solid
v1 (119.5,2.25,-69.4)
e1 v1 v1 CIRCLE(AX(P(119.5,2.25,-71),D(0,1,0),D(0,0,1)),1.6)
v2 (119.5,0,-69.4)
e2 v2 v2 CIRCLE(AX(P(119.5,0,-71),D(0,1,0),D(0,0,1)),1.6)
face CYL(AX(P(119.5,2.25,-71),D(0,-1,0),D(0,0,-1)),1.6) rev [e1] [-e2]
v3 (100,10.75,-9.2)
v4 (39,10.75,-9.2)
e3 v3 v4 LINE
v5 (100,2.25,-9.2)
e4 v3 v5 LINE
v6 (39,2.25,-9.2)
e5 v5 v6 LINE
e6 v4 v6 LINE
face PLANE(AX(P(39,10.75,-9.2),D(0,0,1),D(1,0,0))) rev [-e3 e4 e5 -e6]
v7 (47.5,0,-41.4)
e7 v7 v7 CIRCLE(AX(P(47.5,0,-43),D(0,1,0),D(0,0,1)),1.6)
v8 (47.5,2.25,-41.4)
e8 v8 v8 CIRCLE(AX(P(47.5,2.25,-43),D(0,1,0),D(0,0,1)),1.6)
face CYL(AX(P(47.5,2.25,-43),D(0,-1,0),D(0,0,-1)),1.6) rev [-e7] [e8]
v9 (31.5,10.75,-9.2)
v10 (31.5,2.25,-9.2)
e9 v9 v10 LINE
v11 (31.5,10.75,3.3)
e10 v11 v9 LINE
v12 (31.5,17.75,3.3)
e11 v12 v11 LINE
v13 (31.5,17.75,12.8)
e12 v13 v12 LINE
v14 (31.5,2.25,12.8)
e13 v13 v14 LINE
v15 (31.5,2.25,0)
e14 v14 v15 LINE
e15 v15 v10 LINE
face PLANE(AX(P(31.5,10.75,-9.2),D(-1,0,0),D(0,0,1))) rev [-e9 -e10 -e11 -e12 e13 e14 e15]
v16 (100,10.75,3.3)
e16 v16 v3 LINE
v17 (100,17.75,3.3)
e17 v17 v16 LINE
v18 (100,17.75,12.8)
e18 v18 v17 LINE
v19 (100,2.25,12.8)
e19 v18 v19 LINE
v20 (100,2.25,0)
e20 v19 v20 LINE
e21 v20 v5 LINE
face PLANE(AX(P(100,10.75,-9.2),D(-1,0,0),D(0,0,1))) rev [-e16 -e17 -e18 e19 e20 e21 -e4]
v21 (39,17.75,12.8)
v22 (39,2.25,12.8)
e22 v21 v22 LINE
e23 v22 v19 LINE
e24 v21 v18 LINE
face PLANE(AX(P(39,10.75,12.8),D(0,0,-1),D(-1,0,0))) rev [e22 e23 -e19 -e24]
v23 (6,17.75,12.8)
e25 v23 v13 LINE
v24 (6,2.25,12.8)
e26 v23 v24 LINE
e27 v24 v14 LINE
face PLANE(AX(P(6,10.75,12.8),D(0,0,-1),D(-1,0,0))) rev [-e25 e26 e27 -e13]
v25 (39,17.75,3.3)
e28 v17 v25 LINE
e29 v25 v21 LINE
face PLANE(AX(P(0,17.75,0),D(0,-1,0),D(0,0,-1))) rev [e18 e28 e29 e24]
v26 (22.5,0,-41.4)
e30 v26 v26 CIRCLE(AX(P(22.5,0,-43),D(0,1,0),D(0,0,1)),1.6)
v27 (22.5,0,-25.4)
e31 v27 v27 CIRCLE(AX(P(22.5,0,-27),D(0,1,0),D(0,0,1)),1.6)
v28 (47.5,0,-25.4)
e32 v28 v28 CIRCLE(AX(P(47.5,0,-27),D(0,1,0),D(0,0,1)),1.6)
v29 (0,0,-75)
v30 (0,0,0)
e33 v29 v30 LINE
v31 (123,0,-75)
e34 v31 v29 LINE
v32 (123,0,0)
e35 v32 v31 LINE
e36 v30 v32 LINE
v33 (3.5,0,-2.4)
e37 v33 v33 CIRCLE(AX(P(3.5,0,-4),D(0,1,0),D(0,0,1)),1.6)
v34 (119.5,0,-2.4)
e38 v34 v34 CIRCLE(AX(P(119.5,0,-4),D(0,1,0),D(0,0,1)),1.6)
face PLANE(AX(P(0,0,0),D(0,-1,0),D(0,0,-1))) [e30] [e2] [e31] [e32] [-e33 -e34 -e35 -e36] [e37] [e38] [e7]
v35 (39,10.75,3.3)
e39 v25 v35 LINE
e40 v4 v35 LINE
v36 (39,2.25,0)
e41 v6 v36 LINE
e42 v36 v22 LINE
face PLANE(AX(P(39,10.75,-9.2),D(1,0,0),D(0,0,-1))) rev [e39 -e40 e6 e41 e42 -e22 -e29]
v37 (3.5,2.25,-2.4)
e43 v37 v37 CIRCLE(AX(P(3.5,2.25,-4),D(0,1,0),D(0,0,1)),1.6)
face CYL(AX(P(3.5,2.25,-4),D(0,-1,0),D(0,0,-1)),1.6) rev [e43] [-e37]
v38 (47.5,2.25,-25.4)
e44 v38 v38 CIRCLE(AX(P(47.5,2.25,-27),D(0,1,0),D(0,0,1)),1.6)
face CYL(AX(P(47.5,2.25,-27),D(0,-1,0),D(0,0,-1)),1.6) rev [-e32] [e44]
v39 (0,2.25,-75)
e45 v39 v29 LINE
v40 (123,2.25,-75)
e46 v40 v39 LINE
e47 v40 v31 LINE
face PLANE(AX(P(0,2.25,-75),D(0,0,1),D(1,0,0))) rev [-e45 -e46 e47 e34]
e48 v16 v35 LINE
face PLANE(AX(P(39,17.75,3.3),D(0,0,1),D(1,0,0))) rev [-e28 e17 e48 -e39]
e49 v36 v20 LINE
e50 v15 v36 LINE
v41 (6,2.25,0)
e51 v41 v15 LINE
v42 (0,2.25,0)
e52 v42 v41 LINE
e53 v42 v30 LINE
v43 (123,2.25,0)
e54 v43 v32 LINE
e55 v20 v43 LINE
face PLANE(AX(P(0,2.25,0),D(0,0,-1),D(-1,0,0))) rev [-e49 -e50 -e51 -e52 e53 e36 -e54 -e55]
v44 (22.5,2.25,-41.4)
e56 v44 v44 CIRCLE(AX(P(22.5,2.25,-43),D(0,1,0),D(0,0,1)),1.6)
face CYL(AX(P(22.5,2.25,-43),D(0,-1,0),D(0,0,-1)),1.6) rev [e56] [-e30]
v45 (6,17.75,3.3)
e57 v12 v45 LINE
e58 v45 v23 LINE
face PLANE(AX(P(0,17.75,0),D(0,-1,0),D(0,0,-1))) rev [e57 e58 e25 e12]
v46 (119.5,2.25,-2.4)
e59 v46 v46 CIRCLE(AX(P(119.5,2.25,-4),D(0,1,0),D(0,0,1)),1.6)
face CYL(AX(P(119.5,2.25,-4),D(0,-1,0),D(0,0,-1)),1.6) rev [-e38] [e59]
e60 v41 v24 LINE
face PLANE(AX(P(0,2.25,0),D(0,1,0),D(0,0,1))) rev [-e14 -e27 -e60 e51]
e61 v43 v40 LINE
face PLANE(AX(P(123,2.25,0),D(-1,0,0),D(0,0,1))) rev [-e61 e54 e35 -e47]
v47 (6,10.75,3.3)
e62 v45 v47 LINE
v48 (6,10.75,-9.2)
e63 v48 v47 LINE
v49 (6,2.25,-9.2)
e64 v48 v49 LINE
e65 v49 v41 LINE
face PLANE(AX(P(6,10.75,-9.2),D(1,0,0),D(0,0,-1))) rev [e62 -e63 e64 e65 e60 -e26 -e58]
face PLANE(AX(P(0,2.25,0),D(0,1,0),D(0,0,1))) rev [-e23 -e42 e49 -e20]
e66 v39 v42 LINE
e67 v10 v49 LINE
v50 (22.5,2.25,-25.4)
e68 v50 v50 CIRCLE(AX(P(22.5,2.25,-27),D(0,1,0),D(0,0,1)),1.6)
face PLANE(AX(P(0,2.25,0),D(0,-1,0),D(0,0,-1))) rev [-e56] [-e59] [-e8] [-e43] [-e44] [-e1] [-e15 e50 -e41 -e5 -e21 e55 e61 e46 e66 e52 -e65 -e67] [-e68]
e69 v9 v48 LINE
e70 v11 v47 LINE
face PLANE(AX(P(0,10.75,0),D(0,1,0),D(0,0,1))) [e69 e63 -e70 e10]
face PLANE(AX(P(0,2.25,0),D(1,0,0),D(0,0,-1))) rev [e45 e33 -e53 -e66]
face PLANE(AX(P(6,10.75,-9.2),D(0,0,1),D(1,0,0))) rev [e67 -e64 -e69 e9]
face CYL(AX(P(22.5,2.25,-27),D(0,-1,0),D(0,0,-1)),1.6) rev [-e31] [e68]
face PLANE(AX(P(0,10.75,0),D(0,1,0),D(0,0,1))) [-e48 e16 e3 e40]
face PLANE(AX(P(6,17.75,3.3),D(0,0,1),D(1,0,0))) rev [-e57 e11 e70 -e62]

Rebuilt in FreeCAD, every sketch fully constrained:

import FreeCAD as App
import Part
import Sketcher
from FreeCAD import Vector


def add_polygon(sketch, points):
    """Adds a closed chain of lines whose ends are joined by coincident constraints."""
    first, n = sketch.GeometryCount, len(points)
    for a, b in zip(points, points[1:] + points[:1]):
        sketch.addGeometry(Part.LineSegment(App.Vector(*a, 0), App.Vector(*b, 0)), False)
    for i in range(n):
        sketch.addConstraint(Sketcher.Constraint("Coincident", first + i, 2, first + (i + 1) % n, 1))

doc = App.newDocument("Part")
body = doc.addObject("PartDesign::Body", "Body")

# Sketch on XZ plane
sketch1 = body.newObject("Sketcher::SketchObject", "Sketch")
sketch1.AttachmentSupport = (doc.getObject("XZ_Plane"), [""])
sketch1.MapMode = "FlatFace"
add_polygon(sketch1, [(0, -75), (0, 0), (123, 0), (123, -75)])  # lines 0-3
sketch1.addGeometry(Part.Circle(Vector(3.5, -4, 0), Vector(0, 0, 1), 1.6), False)  # 4
sketch1.addGeometry(Part.Circle(Vector(22.5, -27, 0), Vector(0, 0, 1), 1.6), False)  # 5
sketch1.addGeometry(Part.Circle(Vector(47.5, -27, 0), Vector(0, 0, 1), 1.6), False)  # 6
sketch1.addGeometry(Part.Circle(Vector(119.5, -4, 0), Vector(0, 0, 1), 1.6), False)  # 7
sketch1.addGeometry(Part.Circle(Vector(22.5, -43, 0), Vector(0, 0, 1), 1.6), False)  # 8
sketch1.addGeometry(Part.Circle(Vector(47.5, -43, 0), Vector(0, 0, 1), 1.6), False)  # 9
sketch1.addGeometry(Part.Circle(Vector(119.5, -71, 0), Vector(0, 0, 1), 1.6), False)  # 10
sketch1.addConstraint([
    Sketcher.Constraint("Vertical", 0),
    Sketcher.Constraint("Horizontal", 1),
    Sketcher.Constraint("Vertical", 2),
    Sketcher.Constraint("Horizontal", 3),
    Sketcher.Constraint("Coincident", 0, 2, -1, 1),
    Sketcher.Constraint("Equal", 4, 5),
    Sketcher.Constraint("Equal", 5, 6),
    Sketcher.Constraint("Equal", 6, 7),
    Sketcher.Constraint("Equal", 7, 8),
    Sketcher.Constraint("Equal", 8, 9),
    Sketcher.Constraint("Equal", 9, 10),
    Sketcher.Constraint("Horizontal", 5, 3, 6, 3),
    Sketcher.Constraint("Horizontal", 4, 3, 7, 3),
    Sketcher.Constraint("Horizontal", 8, 3, 9, 3),
    Sketcher.Constraint("Vertical", 5, 3, 8, 3),
    Sketcher.Constraint("Vertical", 6, 3, 9, 3),
    Sketcher.Constraint("Vertical", 7, 3, 10, 3),
    Sketcher.Constraint("Diameter", 4, 3.2),
    Sketcher.Constraint("DistanceX", 1, 1, 1, 2, 123.0),
    Sketcher.Constraint("DistanceY", 0, 1, 0, 2, 75.0),
    Sketcher.Constraint("DistanceY", 4, 3, -1, 1, 4.0),
    Sketcher.Constraint("DistanceY", 5, 3, -1, 1, 27.0),
    Sketcher.Constraint("DistanceY", 8, 3, -1, 1, 43.0),
    Sketcher.Constraint("DistanceY", 10, 3, -1, 1, 71.0),
    Sketcher.Constraint("DistanceX", 4, 3, 5, 3, 19.0),
    Sketcher.Constraint("DistanceX", 5, 3, 6, 3, 25.0),
    Sketcher.Constraint("DistanceX", 6, 3, 7, 3, 72.0),
    Sketcher.Constraint("DistanceX", -1, 1, 4, 3, 3.5),
])
pad1 = body.newObject("PartDesign::Pad", "Pad")
pad1.Profile = sketch1
pad1.Length = 2.25
pad1.Reversed = True

# Sketch on XZ plane
sketch2 = body.newObject("Sketcher::SketchObject", "Sketch001")
sketch2.AttachmentSupport = (doc.getObject("XZ_Plane"), [""])
sketch2.MapMode = "FlatFace"
sketch2.AttachmentOffset = App.Placement(Vector(0, 0, -2.25), App.Rotation())
add_polygon(sketch2, [(6, -9), (6, 13), (32, 13), (32, -9)])  # lines 0-3
add_polygon(sketch2, [(39, -9), (39, 13), (100, 13), (100, -9)])  # lines 4-7
sketch2.addConstraint([
    Sketcher.Constraint("Vertical", 0),
    Sketcher.Constraint("Horizontal", 1),
    Sketcher.Constraint("Vertical", 2),
    Sketcher.Constraint("Horizontal", 3),
    Sketcher.Constraint("Vertical", 4),
    Sketcher.Constraint("Horizontal", 5),
    Sketcher.Constraint("Vertical", 6),
    Sketcher.Constraint("Horizontal", 7),
    Sketcher.Constraint("Horizontal", 1, 2, 4, 2),
    Sketcher.Constraint("Horizontal", 3, 2, 6, 2),
    Sketcher.Constraint("DistanceX", 5, 1, 5, 2, 61.0),
    Sketcher.Constraint("DistanceY", 0, 1, 0, 2, 22.0),
    Sketcher.Constraint("DistanceX", 1, 1, 1, 2, 25.5),
    Sketcher.Constraint("DistanceX", -1, 1, 0, 2, 6.0),
    Sketcher.Constraint("DistanceX", -1, 1, 4, 2, 39.0),
    Sketcher.Constraint("DistanceY", -1, 1, 0, 2, 12.8),
])
pad2 = body.newObject("PartDesign::Pad", "Pad001")
pad2.Profile = sketch2
pad2.Length = 8.5
pad2.Reversed = True

# Sketch on XZ plane
sketch3 = body.newObject("Sketcher::SketchObject", "Sketch002")
sketch3.AttachmentSupport = (doc.getObject("XZ_Plane"), [""])
sketch3.MapMode = "FlatFace"
sketch3.AttachmentOffset = App.Placement(Vector(0, 0, -10.75), App.Rotation())
add_polygon(sketch3, [(6, 3), (6, 13), (32, 13), (32, 3)])  # lines 0-3
add_polygon(sketch3, [(39, 3), (39, 13), (100, 13), (100, 3)])  # lines 4-7
sketch3.addConstraint([
    Sketcher.Constraint("Vertical", 0),
    Sketcher.Constraint("Horizontal", 1),
    Sketcher.Constraint("Vertical", 2),
    Sketcher.Constraint("Horizontal", 3),
    Sketcher.Constraint("Vertical", 4),
    Sketcher.Constraint("Horizontal", 5),
    Sketcher.Constraint("Vertical", 6),
    Sketcher.Constraint("Horizontal", 7),
    Sketcher.Constraint("Horizontal", 1, 2, 4, 2),
    Sketcher.Constraint("Horizontal", 3, 2, 6, 2),
    Sketcher.Constraint("DistanceX", 5, 1, 5, 2, 61.0),
    Sketcher.Constraint("DistanceX", 1, 1, 1, 2, 25.5),
    Sketcher.Constraint("DistanceY", 0, 1, 0, 2, 9.5),
    Sketcher.Constraint("DistanceX", -1, 1, 0, 2, 6.0),
    Sketcher.Constraint("DistanceX", -1, 1, 4, 2, 39.0),
    Sketcher.Constraint("DistanceY", -1, 1, 0, 2, 12.8),
])
pad3 = body.newObject("PartDesign::Pad", "Pad002")
pad3.Profile = sketch3
pad3.Length = 7
pad3.Reversed = True

doc.recompute()
